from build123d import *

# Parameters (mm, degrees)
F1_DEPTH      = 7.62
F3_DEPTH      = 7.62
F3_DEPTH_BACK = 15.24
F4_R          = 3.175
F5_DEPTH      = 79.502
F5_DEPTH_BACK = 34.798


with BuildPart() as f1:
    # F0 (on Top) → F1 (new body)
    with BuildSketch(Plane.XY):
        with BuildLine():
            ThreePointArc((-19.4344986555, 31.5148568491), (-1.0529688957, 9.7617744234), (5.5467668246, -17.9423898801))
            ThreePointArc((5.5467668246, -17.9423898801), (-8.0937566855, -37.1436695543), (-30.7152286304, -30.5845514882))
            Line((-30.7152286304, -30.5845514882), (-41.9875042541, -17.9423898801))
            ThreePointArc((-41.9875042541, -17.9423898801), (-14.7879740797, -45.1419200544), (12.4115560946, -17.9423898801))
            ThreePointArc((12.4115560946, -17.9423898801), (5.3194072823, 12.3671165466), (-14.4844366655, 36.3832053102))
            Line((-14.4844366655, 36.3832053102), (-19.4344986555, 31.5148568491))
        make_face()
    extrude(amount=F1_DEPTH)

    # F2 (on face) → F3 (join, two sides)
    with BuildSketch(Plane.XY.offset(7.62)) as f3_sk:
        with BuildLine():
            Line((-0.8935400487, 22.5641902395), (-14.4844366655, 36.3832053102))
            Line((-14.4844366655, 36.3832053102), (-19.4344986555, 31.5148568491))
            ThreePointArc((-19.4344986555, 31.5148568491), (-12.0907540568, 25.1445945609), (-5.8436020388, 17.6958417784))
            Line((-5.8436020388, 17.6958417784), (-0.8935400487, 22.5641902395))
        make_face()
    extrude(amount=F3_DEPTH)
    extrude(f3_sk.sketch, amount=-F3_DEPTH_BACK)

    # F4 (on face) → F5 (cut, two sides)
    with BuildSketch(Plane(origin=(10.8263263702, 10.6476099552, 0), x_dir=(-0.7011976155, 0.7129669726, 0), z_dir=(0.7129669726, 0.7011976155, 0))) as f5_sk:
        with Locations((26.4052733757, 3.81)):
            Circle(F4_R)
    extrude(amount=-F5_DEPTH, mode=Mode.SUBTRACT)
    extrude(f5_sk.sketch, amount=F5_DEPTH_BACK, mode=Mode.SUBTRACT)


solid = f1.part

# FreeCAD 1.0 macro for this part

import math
import FreeCAD as App
import Part
import Sketcher

V = App.Vector
Q = App.Units.Quantity

doc = App.newDocument("Part")
body = doc.addObject("PartDesign::Body", "Body")

# Sketch on XY plane
sketch1 = doc.addObject("Sketcher::SketchObject", "Sketch")
body.addObject(sketch1)
sketch1.AttachmentSupport = (doc.XY_Plane, [""])
sketch1.MapMode = "FlatFace"
sketch1.addGeometry([
    Part.ArcOfCircle(Part.Circle(V(-56, -18, 0), V(0, 0, 1), 61), math.radians(0), math.radians(54)),  # 0
    Part.ArcOfCircle(Part.Circle(V(-15, -18, 0), V(0, 0, 1), 20), math.radians(-142), math.radians(0)),  # 1
    Part.LineSegment(V(-31, -31, 0), V(-42, -18, 0)),  # 2
    Part.ArcOfCircle(Part.Circle(V(-15, -18, 0), V(0, 0, 1), 27), math.radians(180), math.radians(360)),  # 3
    Part.ArcOfCircle(Part.Circle(V(-56, -18, 0), V(0, 0, 1), 68), math.radians(0), math.radians(53)),  # 4
    Part.LineSegment(V(-14, 36, 0), V(-19, 32, 0)),  # 5
], False)
sketch1.addConstraint([
    Sketcher.Constraint("Tangent", 0, 1, 1, 2),
    Sketcher.Constraint("Coincident", 1, 1, 2, 1),
    Sketcher.Constraint("Coincident", 2, 2, 3, 1),
    Sketcher.Constraint("Tangent", 3, 2, 4, 1),
    Sketcher.Constraint("Coincident", 4, 2, 5, 1),
    Sketcher.Constraint("Coincident", 5, 2, 0, 2),
    Sketcher.Constraint("Coincident", 3, 3, 1, 3),
    Sketcher.Constraint("Coincident", 4, 3, 0, 3),
    Sketcher.Constraint("Horizontal", 0, 3, 1, 3),
    Sketcher.Constraint("Horizontal", 0, 1, 2, 2),
    Sketcher.Constraint("Radius", 1, 20.334741),
    Sketcher.Constraint("Radius", 3, 27.19953),
    Sketcher.Constraint("Radius", 0, 61.447705),
    Sketcher.Constraint("DistanceX", 5, 2, -1, 1, 19.434499),
    Sketcher.Constraint("Distance", 2, 16.937782),
    Sketcher.Constraint("DistanceX", 0, 3, -1, 1, 55.900938),
    Sketcher.Constraint("DistanceY", 0, 3, -1, 1, 17.94239),
    Sketcher.Constraint("DistanceX", 5, 2, 4, 2, 4.950062),
])
pad1 = doc.addObject("PartDesign::Pad", "Pad")
body.addObject(pad1)
pad1.Profile = sketch1
pad1.Length = Q("0.3 in")

# Sketch on XY plane
sketch2 = doc.addObject("Sketcher::SketchObject", "Sketch001")
body.addObject(sketch2)
sketch2.AttachmentSupport = (doc.XY_Plane, [""])
sketch2.MapMode = "FlatFace"
sketch2.AttachmentOffset = App.Placement(V(0, 0, 0.3 * 25.4), App.Rotation())
sketch2.addGeometry([
    Part.LineSegment(V(-1, 23, 0), V(-14, 36, 0)),
    Part.LineSegment(V(-14, 36, 0), V(-19, 32, 0)),
    Part.ArcOfCircle(Part.Circle(V(-56, -18, 0), V(0, 0, 1), 61), math.radians(35.45), math.radians(53.6)),
    Part.LineSegment(V(-6, 18, 0), V(-1, 23, 0)),
], False)
sketch2.addConstraint([
    Sketcher.Constraint("Coincident", 0, 2, 1, 1),
    Sketcher.Constraint("Coincident", 1, 2, 2, 2),
    Sketcher.Constraint("Coincident", 2, 1, 3, 1),
    Sketcher.Constraint("Coincident", 3, 2, 0, 1),
    Sketcher.Constraint("Perpendicular", 0, 1),
    Sketcher.Constraint("Parallel", 1, 3),
    Sketcher.Constraint("Equal", 1, 3),
    Sketcher.Constraint("Radius", 2, 61.447705),
    Sketcher.Constraint("DistanceX", 1, 2, -1, 1, 19.434499),
    Sketcher.Constraint("DistanceX", 2, 3, 0, 2, 41.416502),
    Sketcher.Constraint("DistanceX", 2, 3, 3, 2, 55.007398),
    Sketcher.Constraint("DistanceX", 2, 3, -1, 1, 55.900938),
    Sketcher.Constraint("DistanceY", 2, 3, -1, 1, 17.94239),
])
pad2 = doc.addObject("PartDesign::Pad", "Pad001")
body.addObject(pad2)
pad2.Profile = sketch2
pad2.Type = "TwoLengths"
pad2.Length = Q("0.3 in")
pad2.Length2 = Q("0.6 in")

# Sketch on an angled plane
sketch3 = doc.addObject("Sketcher::SketchObject", "Sketch002")
body.addObject(sketch3)
sketch3.Placement = App.Placement(V(10.826326, 10.64761, 0), App.Rotation(V(-0.701197615, 0.712966973, 0), V(0, 0, 1), V(0.712966973, 0.701197615, 0), "ZXY"))
sketch3.addGeometry(Part.Circle(V(26.4, 3.8, 0), V(0, 0, 1), 3.2), False)
sketch3.addConstraint([
    Sketcher.Constraint("Diameter", 0, Q("0.25 in")),
    Sketcher.Constraint("DistanceY", -1, 1, 0, 3, Q("0.15 in")),
    Sketcher.Constraint("DistanceX", -1, 1, 0, 3, 26.405273),
])
pocket1 = doc.addObject("PartDesign::Pocket", "Pocket")
body.addObject(pocket1)
pocket1.Profile = sketch3
pocket1.Type = "ThroughAll"
pocket1.Midplane = True

doc.recompute()
